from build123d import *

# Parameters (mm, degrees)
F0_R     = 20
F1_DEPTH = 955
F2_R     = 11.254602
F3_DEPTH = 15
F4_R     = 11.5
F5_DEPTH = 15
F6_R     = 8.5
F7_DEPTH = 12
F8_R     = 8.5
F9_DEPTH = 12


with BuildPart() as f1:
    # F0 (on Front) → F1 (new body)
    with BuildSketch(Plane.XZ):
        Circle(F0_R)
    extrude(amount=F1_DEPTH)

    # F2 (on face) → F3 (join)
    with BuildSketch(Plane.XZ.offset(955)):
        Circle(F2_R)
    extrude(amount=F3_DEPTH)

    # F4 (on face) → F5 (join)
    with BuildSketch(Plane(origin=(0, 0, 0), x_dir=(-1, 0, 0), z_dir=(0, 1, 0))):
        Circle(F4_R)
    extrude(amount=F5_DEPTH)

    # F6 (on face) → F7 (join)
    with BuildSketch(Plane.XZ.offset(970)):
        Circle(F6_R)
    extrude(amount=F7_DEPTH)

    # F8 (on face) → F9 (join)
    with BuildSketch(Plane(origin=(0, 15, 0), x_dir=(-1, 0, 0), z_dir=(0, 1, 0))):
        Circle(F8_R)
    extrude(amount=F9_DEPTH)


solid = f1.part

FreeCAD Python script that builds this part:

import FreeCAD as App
import Part
import Sketcher
Q = App.Units.Quantity

doc = App.newDocument("Part")
body = doc.addObject("PartDesign::Body", "Body")

# Sketch on XZ plane
sketch1 = body.newObject("Sketcher::SketchObject", "Sketch")
sketch1.AttachmentSupport = (doc.getObject("XZ_Plane"), [""])
sketch1.MapMode = "FlatFace"
sketch1.addGeometry(Part.Circle(App.Vector(0, 0, 0), App.Vector(0, 0, 1), 20), False)
sketch1.addConstraint(Sketcher.Constraint("Coincident", 0, 3, -1, 1))
sketch1.addConstraint(Sketcher.Constraint("Diameter", 0, Q("40 mm")))
pad1 = body.newObject("PartDesign::Pad", "Pad")
pad1.Profile = sketch1
pad1.Length = 955

# Sketch on XZ plane
sketch2 = body.newObject("Sketcher::SketchObject", "Sketch001")
sketch2.AttachmentSupport = (doc.getObject("XZ_Plane"), [""])
sketch2.MapMode = "FlatFace"
sketch2.AttachmentOffset = App.Placement(App.Vector(0, 0, 955), App.Rotation())
sketch2.addGeometry(Part.Circle(App.Vector(0, 0, 0), App.Vector(0, 0, 1), 11.254602), False)
sketch2.addConstraint(Sketcher.Constraint("Coincident", 0, 3, -1, 1))
sketch2.addConstraint(Sketcher.Constraint("Diameter", 0, Q("22.509204 mm")))
pad2 = body.newObject("PartDesign::Pad", "Pad001")
pad2.Profile = sketch2
pad2.Length = 15

# Sketch on XZ plane
sketch3 = body.newObject("Sketcher::SketchObject", "Sketch002")
sketch3.AttachmentSupport = (doc.getObject("XZ_Plane"), [""])
sketch3.MapMode = "FlatFace"
sketch3.addGeometry(Part.Circle(App.Vector(0, 0, 0), App.Vector(0, 0, 1), 11.5), False)
sketch3.addConstraint(Sketcher.Constraint("Coincident", 0, 3, -1, 1))
sketch3.addConstraint(Sketcher.Constraint("Diameter", 0, Q("23 mm")))
pad3 = body.newObject("PartDesign::Pad", "Pad002")
pad3.Profile = sketch3
pad3.Length = 15
pad3.Reversed = True

# Sketch on XZ plane
sketch4 = body.newObject("Sketcher::SketchObject", "Sketch003")
sketch4.AttachmentSupport = (doc.getObject("XZ_Plane"), [""])
sketch4.MapMode = "FlatFace"
sketch4.AttachmentOffset = App.Placement(App.Vector(0, 0, 970), App.Rotation())
sketch4.addGeometry(Part.Circle(App.Vector(0, 0, 0), App.Vector(0, 0, 1), 8.5), False)
sketch4.addConstraint(Sketcher.Constraint("Coincident", 0, 3, -1, 1))
sketch4.addConstraint(Sketcher.Constraint("Diameter", 0, Q("17 mm")))
pad4 = body.newObject("PartDesign::Pad", "Pad003")
pad4.Profile = sketch4
pad4.Length = 12

# Sketch on XZ plane
sketch5 = body.newObject("Sketcher::SketchObject", "Sketch004")
sketch5.AttachmentSupport = (doc.getObject("XZ_Plane"), [""])
sketch5.MapMode = "FlatFace"
sketch5.AttachmentOffset = App.Placement(App.Vector(0, 0, -15), App.Rotation())
sketch5.addGeometry(Part.Circle(App.Vector(0, 0, 0), App.Vector(0, 0, 1), 8.5), False)
sketch5.addConstraint(Sketcher.Constraint("Coincident", 0, 3, -1, 1))
sketch5.addConstraint(Sketcher.Constraint("Diameter", 0, Q("17 mm")))
pad5 = body.newObject("PartDesign::Pad", "Pad004")
pad5.Profile = sketch5
pad5.Length = 12
pad5.Reversed = True

doc.recompute()
